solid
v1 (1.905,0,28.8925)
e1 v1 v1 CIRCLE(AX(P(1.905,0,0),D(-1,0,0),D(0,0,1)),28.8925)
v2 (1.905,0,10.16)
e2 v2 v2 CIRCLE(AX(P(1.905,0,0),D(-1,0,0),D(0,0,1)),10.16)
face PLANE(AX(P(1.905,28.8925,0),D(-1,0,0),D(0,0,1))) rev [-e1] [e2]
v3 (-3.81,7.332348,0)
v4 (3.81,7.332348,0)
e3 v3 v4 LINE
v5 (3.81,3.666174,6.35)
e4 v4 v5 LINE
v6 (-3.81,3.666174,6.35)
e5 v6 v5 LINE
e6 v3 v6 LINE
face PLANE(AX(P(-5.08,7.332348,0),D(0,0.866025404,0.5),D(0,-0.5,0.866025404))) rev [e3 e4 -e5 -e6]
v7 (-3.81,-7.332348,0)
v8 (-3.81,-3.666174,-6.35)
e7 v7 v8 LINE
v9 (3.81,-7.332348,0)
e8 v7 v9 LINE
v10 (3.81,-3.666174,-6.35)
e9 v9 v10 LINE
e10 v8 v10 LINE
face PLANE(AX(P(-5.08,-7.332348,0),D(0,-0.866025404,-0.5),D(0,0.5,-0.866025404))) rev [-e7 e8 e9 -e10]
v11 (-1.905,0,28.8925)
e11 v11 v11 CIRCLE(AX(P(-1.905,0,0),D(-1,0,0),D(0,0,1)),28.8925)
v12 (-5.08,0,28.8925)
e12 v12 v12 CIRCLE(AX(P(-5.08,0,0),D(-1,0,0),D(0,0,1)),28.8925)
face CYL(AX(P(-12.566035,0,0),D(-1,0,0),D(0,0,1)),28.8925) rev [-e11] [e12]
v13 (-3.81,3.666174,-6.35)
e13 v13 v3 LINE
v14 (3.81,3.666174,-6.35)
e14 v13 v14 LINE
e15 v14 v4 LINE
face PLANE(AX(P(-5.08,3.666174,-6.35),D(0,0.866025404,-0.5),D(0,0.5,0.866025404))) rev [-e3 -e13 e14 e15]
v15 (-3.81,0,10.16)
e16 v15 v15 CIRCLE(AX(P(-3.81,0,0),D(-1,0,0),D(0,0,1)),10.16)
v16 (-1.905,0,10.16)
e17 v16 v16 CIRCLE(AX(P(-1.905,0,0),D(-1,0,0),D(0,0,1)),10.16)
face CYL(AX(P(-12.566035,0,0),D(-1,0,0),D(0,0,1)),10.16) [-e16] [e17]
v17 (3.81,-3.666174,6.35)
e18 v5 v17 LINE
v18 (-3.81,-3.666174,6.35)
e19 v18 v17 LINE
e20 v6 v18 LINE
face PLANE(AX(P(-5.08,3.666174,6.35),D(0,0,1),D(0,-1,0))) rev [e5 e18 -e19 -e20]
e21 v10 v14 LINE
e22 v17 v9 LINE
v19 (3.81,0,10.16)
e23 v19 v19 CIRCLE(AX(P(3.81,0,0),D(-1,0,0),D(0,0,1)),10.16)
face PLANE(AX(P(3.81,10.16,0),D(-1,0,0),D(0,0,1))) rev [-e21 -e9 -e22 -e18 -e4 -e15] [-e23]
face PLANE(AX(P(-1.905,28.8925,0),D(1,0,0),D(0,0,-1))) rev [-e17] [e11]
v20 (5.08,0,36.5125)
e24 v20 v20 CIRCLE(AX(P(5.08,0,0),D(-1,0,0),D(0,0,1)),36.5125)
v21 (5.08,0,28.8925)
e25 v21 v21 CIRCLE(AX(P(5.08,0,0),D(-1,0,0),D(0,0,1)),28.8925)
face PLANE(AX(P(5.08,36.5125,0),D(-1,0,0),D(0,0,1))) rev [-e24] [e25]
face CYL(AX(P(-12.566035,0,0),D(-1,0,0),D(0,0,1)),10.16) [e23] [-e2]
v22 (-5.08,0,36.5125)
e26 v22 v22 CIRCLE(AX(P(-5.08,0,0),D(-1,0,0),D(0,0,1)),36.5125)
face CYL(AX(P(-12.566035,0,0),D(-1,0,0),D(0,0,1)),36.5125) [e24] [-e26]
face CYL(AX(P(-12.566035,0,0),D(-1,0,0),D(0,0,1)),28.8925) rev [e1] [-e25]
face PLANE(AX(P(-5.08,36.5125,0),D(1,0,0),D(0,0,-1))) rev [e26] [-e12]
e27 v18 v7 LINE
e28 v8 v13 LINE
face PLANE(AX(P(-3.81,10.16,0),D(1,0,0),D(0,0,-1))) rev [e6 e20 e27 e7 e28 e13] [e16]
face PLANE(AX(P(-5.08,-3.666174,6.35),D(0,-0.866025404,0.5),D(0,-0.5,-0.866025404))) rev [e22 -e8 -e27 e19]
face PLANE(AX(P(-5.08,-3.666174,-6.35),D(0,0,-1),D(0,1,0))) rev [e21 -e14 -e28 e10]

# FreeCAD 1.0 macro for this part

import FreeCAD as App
import Part
import Sketcher
from FreeCAD import Vector
Q = App.Units.Quantity

doc = App.newDocument("Part")
body = doc.addObject("PartDesign::Body", "Body")

# Sketch on XY plane
sketch1 = body.newObject("Sketcher::SketchObject", "Sketch")
sketch1.AttachmentSupport = (doc.getObject("XY_Plane"), [""])
sketch1.MapMode = "FlatFace"
sketch1.addGeometry([
    Part.LineSegment(Vector(5.1, 36.5, 0), Vector(-5.1, 36.5, 0)),  # 0
    Part.LineSegment(Vector(-5.1, 36.5, 0), Vector(-5.1, 28.9, 0)),  # 1
    Part.LineSegment(Vector(-5.1, 28.9, 0), Vector(-1.9, 28.9, 0)),  # 2
    Part.LineSegment(Vector(-1.9, 28.9, 0), Vector(-1.9, 10.2, 0)),  # 3
    Part.LineSegment(Vector(-1.9, 10.2, 0), Vector(-3.8, 10.2, 0)),  # 4
    Part.LineSegment(Vector(-3.8, 10.2, 0), Vector(-3.8, 0, 0)),  # 5
    Part.LineSegment(Vector(-3.8, 0, 0), Vector(3.8, 0, 0)),  # 6
    Part.LineSegment(Vector(3.8, 0, 0), Vector(3.8, 10.2, 0)),  # 7
    Part.LineSegment(Vector(3.8, 10.2, 0), Vector(1.9, 10.2, 0)),  # 8
    Part.LineSegment(Vector(1.9, 10.2, 0), Vector(1.9, 28.9, 0)),  # 9
    Part.LineSegment(Vector(1.9, 28.9, 0), Vector(5.1, 28.9, 0)),  # 10
    Part.LineSegment(Vector(5.1, 28.9, 0), Vector(5.1, 36.5, 0)),  # 11
], False)
sketch1.addConstraint([
    Sketcher.Constraint("Coincident", 0, 2, 1, 1),
    Sketcher.Constraint("Coincident", 1, 2, 2, 1),
    Sketcher.Constraint("Coincident", 2, 2, 3, 1),
    Sketcher.Constraint("Coincident", 3, 2, 4, 1),
    Sketcher.Constraint("Coincident", 4, 2, 5, 1),
    Sketcher.Constraint("Coincident", 5, 2, 6, 1),
    Sketcher.Constraint("Coincident", 6, 2, 7, 1),
    Sketcher.Constraint("Coincident", 7, 2, 8, 1),
    Sketcher.Constraint("Coincident", 8, 2, 9, 1),
    Sketcher.Constraint("Coincident", 9, 2, 10, 1),
    Sketcher.Constraint("Coincident", 10, 2, 11, 1),
    Sketcher.Constraint("Coincident", 11, 2, 0, 1),
    Sketcher.Constraint("Horizontal", 0),
    Sketcher.Constraint("Vertical", 1),
    Sketcher.Constraint("Horizontal", 2),
    Sketcher.Constraint("Vertical", 3),
    Sketcher.Constraint("Horizontal", 4),
    Sketcher.Constraint("Vertical", 5),
    Sketcher.Constraint("Horizontal", 6),
    Sketcher.Constraint("Vertical", 7),
    Sketcher.Constraint("Horizontal", 8),
    Sketcher.Constraint("Vertical", 9),
    Sketcher.Constraint("Horizontal", 10),
    Sketcher.Constraint("Vertical", 11),
    Sketcher.Constraint("Symmetric", 5, 2, 6, 2, -1, 1),
    Sketcher.Constraint("Symmetric", 3, 2, 8, 2, -2),
    Sketcher.Constraint("Symmetric", 1, 2, 10, 2, -2),
    Sketcher.Constraint("Equal", 6, 1),
    Sketcher.Constraint("Equal", 0, 5),
    Sketcher.Constraint("DistanceX", 0, 2, 0, 1, Q("0.4 in")),
    Sketcher.Constraint("DistanceX", 6, 1, 6, 2, Q("0.3 in")),
    Sketcher.Constraint("DistanceX", 2, 1, 2, 2, Q("0.125 in")),
    Sketcher.Constraint("DistanceY", 3, 2, 3, 1, Q("0.7375 in")),
])
revolution = body.newObject("PartDesign::Revolution", "Revolution")
revolution.Profile = sketch1
revolution.ReferenceAxis = (sketch1, ["H_Axis"])
revolution.Angle = 360

# Sketch on YZ plane
sketch2 = body.newObject("Sketcher::SketchObject", "Sketch001")
sketch2.AttachmentSupport = (doc.getObject("YZ_Plane"), [""])
sketch2.MapMode = "FlatFace"
sketch2.AttachmentOffset = App.Placement(Vector(0, 0, 0.15 * 25.4), App.Rotation())
sketch2.addGeometry([
    Part.LineSegment(Vector(7, 0, 0), Vector(4, 6, 0)),  # 0
    Part.LineSegment(Vector(4, 6, 0), Vector(-4, 6, 0)),  # 1
    Part.LineSegment(Vector(-4, 6, 0), Vector(-7, 0, 0)),  # 2
    Part.LineSegment(Vector(-7, 0, 0), Vector(-4, -6, 0)),  # 3
    Part.LineSegment(Vector(-4, -6, 0), Vector(4, -6, 0)),  # 4
    Part.LineSegment(Vector(4, -6, 0), Vector(7, 0, 0)),  # 5
], False)
sketch2.addConstraint([
    Sketcher.Constraint("Coincident", 0, 2, 1, 1),
    Sketcher.Constraint("Coincident", 1, 2, 2, 1),
    Sketcher.Constraint("Coincident", 2, 2, 3, 1),
    Sketcher.Constraint("Coincident", 3, 2, 4, 1),
    Sketcher.Constraint("Coincident", 4, 2, 5, 1),
    Sketcher.Constraint("Coincident", 5, 2, 0, 1),
    Sketcher.Constraint("Horizontal", 1),
    Sketcher.Constraint("Horizontal", 4),
    Sketcher.Constraint("Symmetric", 0, 2, 3, 2, -1, 1),
    Sketcher.Constraint("Symmetric", 2, 2, 5, 2, -1, 1),
    Sketcher.Constraint("PointOnObject", 2, 2, -1),
    Sketcher.Constraint("Parallel", 2, 5),
    Sketcher.Constraint("Vertical", 1, 2, 3, 2),
    Sketcher.Constraint("Angle", 0, Q("120 deg")),
    Sketcher.Constraint("DistanceY", 3, 2, 1, 2, Q("0.5 in")),
    Sketcher.Constraint("DistanceX", 1, 2, 1, 1, 7.332348),
])
pocket1 = body.newObject("PartDesign::Pocket", "Pocket")
pocket1.Profile = sketch2
pocket1.Type = "ThroughAll"

doc.recompute()
